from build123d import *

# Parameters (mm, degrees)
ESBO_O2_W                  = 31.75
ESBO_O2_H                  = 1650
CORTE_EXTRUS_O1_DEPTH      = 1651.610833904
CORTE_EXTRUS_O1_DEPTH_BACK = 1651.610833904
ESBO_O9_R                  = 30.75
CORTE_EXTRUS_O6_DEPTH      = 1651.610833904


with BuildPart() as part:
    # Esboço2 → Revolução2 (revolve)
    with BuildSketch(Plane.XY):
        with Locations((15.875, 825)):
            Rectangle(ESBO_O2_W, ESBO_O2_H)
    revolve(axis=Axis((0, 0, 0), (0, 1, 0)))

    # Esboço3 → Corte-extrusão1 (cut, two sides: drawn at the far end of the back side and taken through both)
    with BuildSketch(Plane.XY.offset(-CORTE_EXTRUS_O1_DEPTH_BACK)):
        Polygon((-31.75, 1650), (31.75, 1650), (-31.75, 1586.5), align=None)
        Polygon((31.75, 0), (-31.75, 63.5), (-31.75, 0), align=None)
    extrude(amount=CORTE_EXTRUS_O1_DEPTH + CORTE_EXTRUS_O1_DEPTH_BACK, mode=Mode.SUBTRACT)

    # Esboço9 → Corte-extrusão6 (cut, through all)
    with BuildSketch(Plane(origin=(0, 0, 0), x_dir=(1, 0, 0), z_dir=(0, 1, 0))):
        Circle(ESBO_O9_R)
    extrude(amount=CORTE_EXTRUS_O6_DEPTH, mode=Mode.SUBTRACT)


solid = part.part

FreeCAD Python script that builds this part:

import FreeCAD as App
import Part
import Sketcher
from FreeCAD import Vector
Q = App.Units.Quantity

doc = App.newDocument("Part")
body = doc.addObject("PartDesign::Body", "Body")

# Sketch on XY plane
sketch1 = doc.addObject("Sketcher::SketchObject", "Sketch")
body.addObject(sketch1)
sketch1.AttachmentSupport = (doc.XY_Plane, [""])
sketch1.MapMode = "FlatFace"
sketch1.addGeometry([
    Part.LineSegment(Vector(0, 1650, 0), Vector(0, 0, 0)),
    Part.LineSegment(Vector(0, 0, 0), Vector(32, 0, 0)),
    Part.LineSegment(Vector(32, 0, 0), Vector(32, 1650, 0)),
    Part.LineSegment(Vector(32, 1650, 0), Vector(0, 1650, 0)),
], False)
sketch1.addConstraint([
    Sketcher.Constraint("Coincident", 0, 2, 1, 1),
    Sketcher.Constraint("Coincident", 1, 2, 2, 1),
    Sketcher.Constraint("Coincident", 2, 2, 3, 1),
    Sketcher.Constraint("Coincident", 3, 2, 0, 1),
    Sketcher.Constraint("Vertical", 0),
    Sketcher.Constraint("Horizontal", 1),
    Sketcher.Constraint("Vertical", 2),
    Sketcher.Constraint("Horizontal", 3),
    Sketcher.Constraint("Coincident", 0, 2, -1, 1),
    Sketcher.Constraint("DistanceY", 0, 2, 0, 1, Q("1650 mm")),
    Sketcher.Constraint("DistanceX", 1, 1, 1, 2, Q("31.75 mm")),
])
revolution = doc.addObject("PartDesign::Revolution", "Revolution")
body.addObject(revolution)
revolution.Profile = sketch1
revolution.ReferenceAxis = (sketch1, ["V_Axis"])
revolution.Angle = 360

# Sketch on XY plane
sketch2 = doc.addObject("Sketcher::SketchObject", "Sketch001")
body.addObject(sketch2)
sketch2.AttachmentSupport = (doc.XY_Plane, [""])
sketch2.MapMode = "FlatFace"
sketch2.addGeometry([
    Part.LineSegment(Vector(32, 1650, 0), Vector(-32, 1650, 0)),  # 0
    Part.LineSegment(Vector(-32, 1650, 0), Vector(-32, 1586, 0)),  # 1
    Part.LineSegment(Vector(-32, 1586, 0), Vector(32, 1650, 0)),  # 2
    Part.LineSegment(Vector(32, 0, 0), Vector(-32, 64, 0)),  # 3
    Part.LineSegment(Vector(-32, 64, 0), Vector(-32, 0, 0)),  # 4
    Part.LineSegment(Vector(-32, 0, 0), Vector(32, 0, 0)),  # 5
], False)
sketch2.addConstraint([
    Sketcher.Constraint("Coincident", 0, 2, 1, 1),
    Sketcher.Constraint("Coincident", 1, 2, 2, 1),
    Sketcher.Constraint("Coincident", 2, 2, 0, 1),
    Sketcher.Constraint("Coincident", 3, 2, 4, 1),
    Sketcher.Constraint("Coincident", 4, 2, 5, 1),
    Sketcher.Constraint("Coincident", 5, 2, 3, 1),
    Sketcher.Constraint("Horizontal", 0),
    Sketcher.Constraint("Vertical", 1),
    Sketcher.Constraint("Vertical", 4),
    Sketcher.Constraint("Horizontal", 5),
    Sketcher.Constraint("Symmetric", 4, 2, 5, 2, -1, 1),
    Sketcher.Constraint("Perpendicular", 2, 3),
    Sketcher.Constraint("Vertical", 1, 2, 3, 2),
    Sketcher.Constraint("Vertical", 2, 2, 5, 2),
    Sketcher.Constraint("Equal", 5, 1),
    Sketcher.Constraint("DistanceX", 0, 2, 0, 1, Q("63.5 mm")),
    Sketcher.Constraint("DistanceY", -1, 1, 0, 2, Q("1650 mm")),
])
pocket1 = doc.addObject("PartDesign::Pocket", "Pocket")
body.addObject(pocket1)
pocket1.Profile = sketch2
pocket1.Type = "ThroughAll"
pocket1.Midplane = True

# Sketch on XZ plane
sketch3 = doc.addObject("Sketcher::SketchObject", "Sketch002")
body.addObject(sketch3)
sketch3.AttachmentSupport = (doc.XZ_Plane, [""])
sketch3.MapMode = "FlatFace"
sketch3.addGeometry(Part.Circle(Vector(0, 0, 0), Vector(0, 0, 1), 31), False)
sketch3.addConstraint([
    Sketcher.Constraint("Coincident", 0, 3, -1, 1),
    Sketcher.Constraint("Diameter", 0, Q("61.5 mm")),
])
pocket2 = doc.addObject("PartDesign::Pocket", "Pocket001")
body.addObject(pocket2)
pocket2.Profile = sketch3
pocket2.Type = "ThroughAll"

doc.recompute()
